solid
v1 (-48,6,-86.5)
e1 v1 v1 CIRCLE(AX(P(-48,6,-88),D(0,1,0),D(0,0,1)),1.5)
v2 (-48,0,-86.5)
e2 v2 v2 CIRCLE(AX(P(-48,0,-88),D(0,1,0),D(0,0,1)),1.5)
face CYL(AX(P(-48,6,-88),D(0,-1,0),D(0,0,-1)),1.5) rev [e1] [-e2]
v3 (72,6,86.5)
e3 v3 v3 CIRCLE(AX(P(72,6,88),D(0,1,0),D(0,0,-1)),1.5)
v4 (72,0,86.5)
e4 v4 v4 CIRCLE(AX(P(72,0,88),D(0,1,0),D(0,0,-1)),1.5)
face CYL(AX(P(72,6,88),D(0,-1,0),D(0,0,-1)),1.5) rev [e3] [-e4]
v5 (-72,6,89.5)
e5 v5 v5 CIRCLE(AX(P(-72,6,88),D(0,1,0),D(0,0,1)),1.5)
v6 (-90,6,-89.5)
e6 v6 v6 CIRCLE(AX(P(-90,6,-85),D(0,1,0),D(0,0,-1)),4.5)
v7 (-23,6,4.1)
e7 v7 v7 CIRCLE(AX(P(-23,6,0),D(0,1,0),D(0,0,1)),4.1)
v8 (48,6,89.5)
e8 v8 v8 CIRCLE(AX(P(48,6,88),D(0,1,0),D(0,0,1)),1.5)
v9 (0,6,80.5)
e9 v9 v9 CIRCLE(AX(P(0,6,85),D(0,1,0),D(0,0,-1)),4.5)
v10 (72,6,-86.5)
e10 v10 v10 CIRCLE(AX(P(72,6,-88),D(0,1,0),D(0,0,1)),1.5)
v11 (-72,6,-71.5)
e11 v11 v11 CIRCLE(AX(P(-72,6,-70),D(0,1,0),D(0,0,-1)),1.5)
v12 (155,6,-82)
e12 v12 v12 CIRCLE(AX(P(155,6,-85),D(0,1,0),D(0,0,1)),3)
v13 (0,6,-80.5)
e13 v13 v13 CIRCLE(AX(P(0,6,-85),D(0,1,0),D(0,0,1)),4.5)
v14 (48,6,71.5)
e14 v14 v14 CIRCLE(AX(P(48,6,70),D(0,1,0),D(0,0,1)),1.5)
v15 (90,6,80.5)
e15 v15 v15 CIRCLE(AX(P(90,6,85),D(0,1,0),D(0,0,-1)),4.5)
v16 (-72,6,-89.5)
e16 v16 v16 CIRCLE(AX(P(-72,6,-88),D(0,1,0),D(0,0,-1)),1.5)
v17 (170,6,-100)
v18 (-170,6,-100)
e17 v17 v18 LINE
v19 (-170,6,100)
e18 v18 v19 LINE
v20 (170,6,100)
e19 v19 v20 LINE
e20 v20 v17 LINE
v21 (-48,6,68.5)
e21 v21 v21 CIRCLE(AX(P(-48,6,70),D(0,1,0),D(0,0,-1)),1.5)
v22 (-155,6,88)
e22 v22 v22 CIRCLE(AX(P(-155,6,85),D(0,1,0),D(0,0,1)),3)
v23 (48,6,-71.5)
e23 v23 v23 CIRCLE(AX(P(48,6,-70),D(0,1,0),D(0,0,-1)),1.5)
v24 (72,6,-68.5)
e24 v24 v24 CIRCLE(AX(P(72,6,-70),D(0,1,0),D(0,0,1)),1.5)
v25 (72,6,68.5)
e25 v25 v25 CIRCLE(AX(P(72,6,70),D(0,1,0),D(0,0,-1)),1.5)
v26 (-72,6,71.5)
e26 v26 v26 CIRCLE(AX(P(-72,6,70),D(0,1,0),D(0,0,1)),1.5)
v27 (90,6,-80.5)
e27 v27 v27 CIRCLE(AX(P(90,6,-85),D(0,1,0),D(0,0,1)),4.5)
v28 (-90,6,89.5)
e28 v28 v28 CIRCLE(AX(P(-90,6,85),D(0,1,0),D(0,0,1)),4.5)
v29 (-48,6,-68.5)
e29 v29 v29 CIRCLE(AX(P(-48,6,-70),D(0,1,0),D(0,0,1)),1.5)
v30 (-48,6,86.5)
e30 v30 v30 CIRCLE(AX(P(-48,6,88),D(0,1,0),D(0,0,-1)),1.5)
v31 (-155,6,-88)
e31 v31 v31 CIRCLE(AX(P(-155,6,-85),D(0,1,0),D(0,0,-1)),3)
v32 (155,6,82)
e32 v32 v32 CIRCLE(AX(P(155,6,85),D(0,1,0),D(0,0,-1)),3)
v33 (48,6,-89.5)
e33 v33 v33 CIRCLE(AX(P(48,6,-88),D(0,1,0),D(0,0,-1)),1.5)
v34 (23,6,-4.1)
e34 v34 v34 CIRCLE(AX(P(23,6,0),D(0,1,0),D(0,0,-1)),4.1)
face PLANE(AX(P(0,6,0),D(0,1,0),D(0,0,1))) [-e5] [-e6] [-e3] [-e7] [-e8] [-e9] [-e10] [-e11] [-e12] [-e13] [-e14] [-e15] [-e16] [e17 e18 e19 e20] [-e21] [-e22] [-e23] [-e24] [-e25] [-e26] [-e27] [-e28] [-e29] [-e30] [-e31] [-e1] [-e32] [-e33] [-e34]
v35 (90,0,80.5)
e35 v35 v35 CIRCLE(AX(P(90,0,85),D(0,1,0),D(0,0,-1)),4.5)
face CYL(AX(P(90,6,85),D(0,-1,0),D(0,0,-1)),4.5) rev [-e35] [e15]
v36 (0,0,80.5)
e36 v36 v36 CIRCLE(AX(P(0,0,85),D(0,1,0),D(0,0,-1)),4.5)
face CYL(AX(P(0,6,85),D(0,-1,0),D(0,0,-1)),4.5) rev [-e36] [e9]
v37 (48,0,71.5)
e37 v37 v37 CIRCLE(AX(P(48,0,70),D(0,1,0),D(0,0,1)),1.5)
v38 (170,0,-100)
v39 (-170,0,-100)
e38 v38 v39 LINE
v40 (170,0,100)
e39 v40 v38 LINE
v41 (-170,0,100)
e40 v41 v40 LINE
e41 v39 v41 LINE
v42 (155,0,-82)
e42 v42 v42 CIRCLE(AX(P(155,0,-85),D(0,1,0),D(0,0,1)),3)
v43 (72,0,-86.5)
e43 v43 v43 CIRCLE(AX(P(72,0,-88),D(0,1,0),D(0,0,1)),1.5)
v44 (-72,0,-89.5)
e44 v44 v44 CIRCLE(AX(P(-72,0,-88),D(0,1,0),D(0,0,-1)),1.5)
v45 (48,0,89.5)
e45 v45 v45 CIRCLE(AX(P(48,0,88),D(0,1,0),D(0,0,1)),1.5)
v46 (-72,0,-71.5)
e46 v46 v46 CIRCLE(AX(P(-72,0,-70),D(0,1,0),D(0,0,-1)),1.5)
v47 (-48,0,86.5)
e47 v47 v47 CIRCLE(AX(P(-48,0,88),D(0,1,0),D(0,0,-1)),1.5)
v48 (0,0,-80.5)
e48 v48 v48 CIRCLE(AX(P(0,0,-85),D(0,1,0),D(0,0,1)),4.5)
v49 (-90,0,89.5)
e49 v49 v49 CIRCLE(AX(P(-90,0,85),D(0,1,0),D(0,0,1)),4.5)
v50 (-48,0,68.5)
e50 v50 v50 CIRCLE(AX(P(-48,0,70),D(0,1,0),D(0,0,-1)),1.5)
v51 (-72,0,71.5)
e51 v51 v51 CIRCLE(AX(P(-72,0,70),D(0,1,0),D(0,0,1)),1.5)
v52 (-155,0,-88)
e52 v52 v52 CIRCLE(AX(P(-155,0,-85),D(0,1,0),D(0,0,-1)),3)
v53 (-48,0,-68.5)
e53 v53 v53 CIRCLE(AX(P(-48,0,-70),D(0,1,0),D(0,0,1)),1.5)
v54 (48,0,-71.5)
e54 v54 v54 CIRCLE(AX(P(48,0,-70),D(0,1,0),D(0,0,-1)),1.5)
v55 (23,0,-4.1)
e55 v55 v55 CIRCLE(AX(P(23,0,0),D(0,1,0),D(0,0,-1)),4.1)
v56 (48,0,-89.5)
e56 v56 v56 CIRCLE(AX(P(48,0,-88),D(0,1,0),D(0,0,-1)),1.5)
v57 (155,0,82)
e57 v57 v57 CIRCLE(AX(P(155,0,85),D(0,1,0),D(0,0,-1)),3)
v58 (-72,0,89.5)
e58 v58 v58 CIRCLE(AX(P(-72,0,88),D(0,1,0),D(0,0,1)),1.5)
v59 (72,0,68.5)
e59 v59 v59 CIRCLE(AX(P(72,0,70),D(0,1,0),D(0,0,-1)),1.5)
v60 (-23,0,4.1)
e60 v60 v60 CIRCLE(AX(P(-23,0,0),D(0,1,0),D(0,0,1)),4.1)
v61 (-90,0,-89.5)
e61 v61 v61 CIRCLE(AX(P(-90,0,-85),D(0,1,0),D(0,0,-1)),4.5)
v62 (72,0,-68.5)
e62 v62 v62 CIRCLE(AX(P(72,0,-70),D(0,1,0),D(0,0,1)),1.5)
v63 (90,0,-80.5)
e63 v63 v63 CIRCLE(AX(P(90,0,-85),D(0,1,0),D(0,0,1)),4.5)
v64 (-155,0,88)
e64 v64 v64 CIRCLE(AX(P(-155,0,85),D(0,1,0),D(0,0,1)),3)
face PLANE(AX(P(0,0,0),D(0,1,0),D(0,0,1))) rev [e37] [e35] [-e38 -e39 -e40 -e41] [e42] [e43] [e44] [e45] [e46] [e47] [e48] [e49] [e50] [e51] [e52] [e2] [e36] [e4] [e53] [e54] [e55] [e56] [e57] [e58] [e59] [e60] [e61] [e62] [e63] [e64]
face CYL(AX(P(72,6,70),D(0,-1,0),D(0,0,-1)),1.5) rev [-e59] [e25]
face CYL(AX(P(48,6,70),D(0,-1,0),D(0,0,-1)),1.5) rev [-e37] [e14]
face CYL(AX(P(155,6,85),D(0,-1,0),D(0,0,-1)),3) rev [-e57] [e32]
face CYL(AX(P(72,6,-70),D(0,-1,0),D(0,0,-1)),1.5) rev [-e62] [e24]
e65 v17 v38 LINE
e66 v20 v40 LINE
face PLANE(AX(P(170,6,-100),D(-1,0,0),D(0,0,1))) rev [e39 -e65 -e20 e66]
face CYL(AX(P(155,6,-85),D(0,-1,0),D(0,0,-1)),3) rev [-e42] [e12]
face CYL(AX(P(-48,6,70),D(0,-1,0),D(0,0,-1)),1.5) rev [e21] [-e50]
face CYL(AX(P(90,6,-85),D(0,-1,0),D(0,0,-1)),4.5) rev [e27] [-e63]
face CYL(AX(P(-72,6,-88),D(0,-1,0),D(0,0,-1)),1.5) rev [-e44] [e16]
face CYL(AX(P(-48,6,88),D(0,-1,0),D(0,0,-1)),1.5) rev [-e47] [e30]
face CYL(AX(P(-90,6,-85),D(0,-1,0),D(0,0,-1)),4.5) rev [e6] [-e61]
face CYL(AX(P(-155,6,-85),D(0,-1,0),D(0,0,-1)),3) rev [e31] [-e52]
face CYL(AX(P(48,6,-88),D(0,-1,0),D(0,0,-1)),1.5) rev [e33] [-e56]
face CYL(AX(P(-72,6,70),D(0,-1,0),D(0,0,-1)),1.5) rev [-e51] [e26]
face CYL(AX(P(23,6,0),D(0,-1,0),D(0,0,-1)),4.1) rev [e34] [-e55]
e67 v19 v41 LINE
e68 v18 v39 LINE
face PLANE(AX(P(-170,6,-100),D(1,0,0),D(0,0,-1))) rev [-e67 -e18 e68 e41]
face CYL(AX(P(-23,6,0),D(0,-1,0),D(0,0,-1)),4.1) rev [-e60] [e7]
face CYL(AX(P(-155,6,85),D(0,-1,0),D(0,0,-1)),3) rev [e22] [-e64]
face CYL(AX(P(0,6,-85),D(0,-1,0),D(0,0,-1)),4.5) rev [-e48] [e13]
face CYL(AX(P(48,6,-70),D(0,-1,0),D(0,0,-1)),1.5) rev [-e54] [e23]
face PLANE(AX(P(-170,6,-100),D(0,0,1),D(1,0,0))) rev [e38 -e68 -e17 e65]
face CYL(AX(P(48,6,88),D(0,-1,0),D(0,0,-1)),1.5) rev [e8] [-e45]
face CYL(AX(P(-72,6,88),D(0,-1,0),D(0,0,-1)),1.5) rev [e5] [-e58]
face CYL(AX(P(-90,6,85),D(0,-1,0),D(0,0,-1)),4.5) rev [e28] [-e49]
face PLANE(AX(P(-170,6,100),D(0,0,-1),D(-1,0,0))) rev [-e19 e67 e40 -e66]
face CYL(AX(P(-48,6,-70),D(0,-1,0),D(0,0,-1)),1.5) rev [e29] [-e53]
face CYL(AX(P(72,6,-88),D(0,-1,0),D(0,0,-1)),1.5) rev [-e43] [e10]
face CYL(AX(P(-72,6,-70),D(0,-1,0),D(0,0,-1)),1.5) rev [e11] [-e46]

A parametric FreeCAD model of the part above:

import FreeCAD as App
import Part
import Sketcher

V = App.Vector
Q = App.Units.Quantity


def add_polygon(sketch, points):
    """Adds a closed chain of lines whose ends are joined by coincident constraints."""
    first, n = sketch.GeometryCount, len(points)
    for a, b in zip(points, points[1:] + points[:1]):
        sketch.addGeometry(Part.LineSegment(App.Vector(*a, 0), App.Vector(*b, 0)), False)
    for i in range(n):
        sketch.addConstraint(Sketcher.Constraint("Coincident", first + i, 2, first + (i + 1) % n, 1))

doc = App.newDocument("Part")
body = doc.addObject("PartDesign::Body", "Body")

sketch1 = body.newObject("Sketcher::SketchObject", "Sketch")
sketch1.AttachmentSupport = (doc.getObject("XZ_Plane"), [""])
sketch1.MapMode = "FlatFace"
add_polygon(sketch1, [(-170, -100), (-170, 100), (170, 100), (170, -100)])
sketch1.addGeometry(Part.Circle(V(-155, 85, 0), V(0, 0, 1), 3), False)
sketch1.addGeometry(Part.Circle(V(-90, 85, 0), V(0, 0, 1), 4.5), False)
sketch1.addGeometry(Part.Circle(V(-72, 88, 0), V(0, 0, 1), 1.5), False)
sketch1.addGeometry(Part.Circle(V(-48, 88, 0), V(0, 0, 1), 1.5), False)
sketch1.addGeometry(Part.Circle(V(-72, 70, 0), V(0, 0, 1), 1.5), False)
sketch1.addGeometry(Part.Circle(V(-48, 70, 0), V(0, 0, 1), 1.5), False)
sketch1.addGeometry(Part.Circle(V(0, 85, 0), V(0, 0, 1), 4.5), False)
sketch1.addGeometry(Part.Circle(V(48, 88, 0), V(0, 0, 1), 1.5), False)
sketch1.addGeometry(Part.Circle(V(72, 88, 0), V(0, 0, 1), 1.5), False)
sketch1.addGeometry(Part.Circle(V(48, 70, 0), V(0, 0, 1), 1.5), False)
sketch1.addGeometry(Part.Circle(V(72, 70, 0), V(0, 0, 1), 1.5), False)
sketch1.addGeometry(Part.Circle(V(90, 85, 0), V(0, 0, 1), 4.5), False)
sketch1.addGeometry(Part.Circle(V(155, 85, 0), V(0, 0, 1), 3), False)
sketch1.addGeometry(Part.Circle(V(-23, 0, 0), V(0, 0, 1), 4.1), False)
sketch1.addGeometry(Part.Circle(V(-155, -85, 0), V(0, 0, 1), 3), False)
sketch1.addGeometry(Part.Circle(V(-90, -85, 0), V(0, 0, 1), 4.5), False)
sketch1.addGeometry(Part.Circle(V(-72, -70, 0), V(0, 0, 1), 1.5), False)
sketch1.addGeometry(Part.Circle(V(-48, -70, 0), V(0, 0, 1), 1.5), False)
sketch1.addGeometry(Part.Circle(V(-72, -88, 0), V(0, 0, 1), 1.5), False)
sketch1.addGeometry(Part.Circle(V(-48, -88, 0), V(0, 0, 1), 1.5), False)
sketch1.addGeometry(Part.Circle(V(23, 0, 0), V(0, 0, 1), 4.1), False)
sketch1.addGeometry(Part.Circle(V(0, -85, 0), V(0, 0, 1), 4.5), False)
sketch1.addGeometry(Part.Circle(V(48, -70, 0), V(0, 0, 1), 1.5), False)
sketch1.addGeometry(Part.Circle(V(72, -70, 0), V(0, 0, 1), 1.5), False)
sketch1.addGeometry(Part.Circle(V(48, -88, 0), V(0, 0, 1), 1.5), False)
sketch1.addGeometry(Part.Circle(V(72, -88, 0), V(0, 0, 1), 1.5), False)
sketch1.addGeometry(Part.Circle(V(90, -85, 0), V(0, 0, 1), 4.5), False)
sketch1.addGeometry(Part.Circle(V(155, -85, 0), V(0, 0, 1), 3), False)
sketch1.addConstraint([
    Sketcher.Constraint("Vertical", 0),
    Sketcher.Constraint("Horizontal", 1),
    Sketcher.Constraint("Vertical", 2),
    Sketcher.Constraint("Horizontal", 3),
    Sketcher.Constraint("Equal", 6, 7),
    Sketcher.Constraint("Equal", 7, 8),
    Sketcher.Constraint("Equal", 8, 9),
    Sketcher.Constraint("Equal", 5, 10),
    Sketcher.Constraint("Equal", 9, 11),
    Sketcher.Constraint("Equal", 11, 12),
    Sketcher.Constraint("Equal", 12, 13),
    Sketcher.Constraint("Equal", 13, 14),
    Sketcher.Constraint("Equal", 10, 15),
    Sketcher.Constraint("Equal", 4, 16),
    Sketcher.Constraint("Equal", 16, 18),
    Sketcher.Constraint("Equal", 15, 19),
    Sketcher.Constraint("Equal", 14, 20),
    Sketcher.Constraint("Equal", 20, 21),
    Sketcher.Constraint("Equal", 21, 22),
    Sketcher.Constraint("Equal", 22, 23),
    Sketcher.Constraint("Equal", 17, 24),
    Sketcher.Constraint("Equal", 19, 25),
    Sketcher.Constraint("Equal", 23, 26),
    Sketcher.Constraint("Equal", 26, 27),
    Sketcher.Constraint("Equal", 27, 28),
    Sketcher.Constraint("Equal", 28, 29),
    Sketcher.Constraint("Equal", 25, 30),
    Sketcher.Constraint("Equal", 18, 31),
    Sketcher.Constraint("Symmetric", 16, 3, 18, 3, -1, 1),
    Sketcher.Constraint("Symmetric", 15, 3, 19, 3, -1, 1),
    Sketcher.Constraint("Symmetric", 14, 3, 20, 3, -1, 1),
    Sketcher.Constraint("Symmetric", 13, 3, 21, 3, -1, 1),
    Sketcher.Constraint("Symmetric", 12, 3, 22, 3, -1, 1),
    Sketcher.Constraint("Symmetric", 11, 3, 23, 3, -1, 1),
    Sketcher.Constraint("Symmetric", 17, 3, 24, 3, -1, 1),
    Sketcher.Constraint("Symmetric", 10, 3, 25, 3, -1, 1),
    Sketcher.Constraint("Symmetric", 9, 3, 26, 3, -1, 1),
    Sketcher.Constraint("Symmetric", 8, 3, 27, 3, -1, 1),
    Sketcher.Constraint("Symmetric", 7, 3, 28, 3, -1, 1),
    Sketcher.Constraint("Symmetric", 6, 3, 29, 3, -1, 1),
    Sketcher.Constraint("Symmetric", 5, 3, 30, 3, -1, 1),
    Sketcher.Constraint("Symmetric", 4, 3, 31, 3, -1, 1),
    Sketcher.Constraint("Symmetric", 0, 2, 2, 2, -1, 1),
    Sketcher.Constraint("Symmetric", 7, 3, 11, 3, -2),
    Sketcher.Constraint("Symmetric", 6, 3, 12, 3, -2),
    Sketcher.Constraint("Symmetric", 9, 3, 13, 3, -2),
    Sketcher.Constraint("Symmetric", 8, 3, 14, 3, -2),
    Sketcher.Constraint("Symmetric", 5, 3, 15, 3, -2),
    Sketcher.Constraint("Symmetric", 4, 3, 16, 3, -2),
    Sketcher.Constraint("PointOnObject", 10, 3, -2),
    Sketcher.Constraint("PointOnObject", 17, 3, -1),
    Sketcher.Constraint("Horizontal", 4, 3, 5, 3),
    Sketcher.Constraint("Horizontal", 6, 3, 7, 3),
    Sketcher.Constraint("Horizontal", 8, 3, 9, 3),
    Sketcher.Constraint("Horizontal", 5, 3, 10, 3),
    Sketcher.Constraint("Vertical", 6, 3, 8, 3),
    Sketcher.Constraint("Vertical", 7, 3, 9, 3),
    Sketcher.Constraint("Diameter", 4, Q("6 mm")),
    Sketcher.Constraint("Diameter", 5, Q("9 mm")),
    Sketcher.Constraint("Diameter", 6, Q("3 mm")),
    Sketcher.Constraint("Diameter", 17, Q("8.2 mm")),
    Sketcher.Constraint("DistanceX", 1, 1, 1, 2, Q("340 mm")),
    Sketcher.Constraint("DistanceY", 0, 1, 0, 2, Q("200 mm")),
    Sketcher.Constraint("DistanceX", 4, 3, -1, 1, Q("155 mm")),
    Sketcher.Constraint("DistanceY", -1, 1, 4, 3, Q("85 mm")),
    Sketcher.Constraint("DistanceX", 5, 3, -1, 1, Q("90 mm")),
    Sketcher.Constraint("DistanceX", 6, 3, -1, 1, Q("72 mm")),
    Sketcher.Constraint("DistanceY", -1, 1, 6, 3, Q("88 mm")),
    Sketcher.Constraint("DistanceX", 7, 3, -1, 1, Q("48 mm")),
    Sketcher.Constraint("DistanceY", -1, 1, 8, 3, Q("70 mm")),
    Sketcher.Constraint("DistanceX", 17, 3, -1, 1, Q("23 mm")),
])
pad1 = body.newObject("PartDesign::Pad", "Pad")
pad1.Profile = sketch1
pad1.Length = 6
pad1.Reversed = True

doc.recompute()
